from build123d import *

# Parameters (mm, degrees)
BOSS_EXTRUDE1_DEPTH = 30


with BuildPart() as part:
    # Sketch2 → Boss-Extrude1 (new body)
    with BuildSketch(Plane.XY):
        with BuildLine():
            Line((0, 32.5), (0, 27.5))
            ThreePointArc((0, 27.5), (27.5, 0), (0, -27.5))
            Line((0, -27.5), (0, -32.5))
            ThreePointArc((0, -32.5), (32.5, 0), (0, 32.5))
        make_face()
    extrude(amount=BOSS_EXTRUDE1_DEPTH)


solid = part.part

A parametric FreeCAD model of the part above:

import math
import FreeCAD as App
import Part
import Sketcher

V = App.Vector
Q = App.Units.Quantity

doc = App.newDocument("Part")
body = doc.addObject("PartDesign::Body", "Body")

# Sketch on XY plane
sketch1 = doc.addObject("Sketcher::SketchObject", "Sketch")
body.addObject(sketch1)
sketch1.AttachmentSupport = (doc.XY_Plane, [""])
sketch1.MapMode = "FlatFace"
sketch1.addGeometry([
    Part.LineSegment(V(0, 32, 0), V(0, 28, 0)),
    Part.ArcOfCircle(Part.Circle(V(0, 0, 0), V(0, 0, 1), 28), math.radians(-90), math.radians(90)),
    Part.LineSegment(V(0, -28, 0), V(0, -32, 0)),
    Part.ArcOfCircle(Part.Circle(V(0, 0, 0), V(0, 0, 1), 32), math.radians(-90), math.radians(90)),
], False)
sketch1.addConstraint([
    Sketcher.Constraint("Coincident", 0, 2, 1, 2),
    Sketcher.Constraint("Coincident", 1, 1, 2, 1),
    Sketcher.Constraint("Coincident", 2, 2, 3, 1),
    Sketcher.Constraint("Coincident", 3, 2, 0, 1),
    Sketcher.Constraint("Vertical", 0),
    Sketcher.Constraint("Vertical", 2),
    Sketcher.Constraint("Coincident", 1, 3, -1, 1),
    Sketcher.Constraint("Coincident", 3, 3, -1, 1),
    Sketcher.Constraint("PointOnObject", 0, 2, -2),
    Sketcher.Constraint("PointOnObject", 1, 1, -2),
    Sketcher.Constraint("Radius", 1, Q("27.5 mm")),
    Sketcher.Constraint("Radius", 3, Q("32.5 mm")),
])
pad1 = doc.addObject("PartDesign::Pad", "Pad")
body.addObject(pad1)
pad1.Profile = sketch1
pad1.Length = 30

doc.recompute()
